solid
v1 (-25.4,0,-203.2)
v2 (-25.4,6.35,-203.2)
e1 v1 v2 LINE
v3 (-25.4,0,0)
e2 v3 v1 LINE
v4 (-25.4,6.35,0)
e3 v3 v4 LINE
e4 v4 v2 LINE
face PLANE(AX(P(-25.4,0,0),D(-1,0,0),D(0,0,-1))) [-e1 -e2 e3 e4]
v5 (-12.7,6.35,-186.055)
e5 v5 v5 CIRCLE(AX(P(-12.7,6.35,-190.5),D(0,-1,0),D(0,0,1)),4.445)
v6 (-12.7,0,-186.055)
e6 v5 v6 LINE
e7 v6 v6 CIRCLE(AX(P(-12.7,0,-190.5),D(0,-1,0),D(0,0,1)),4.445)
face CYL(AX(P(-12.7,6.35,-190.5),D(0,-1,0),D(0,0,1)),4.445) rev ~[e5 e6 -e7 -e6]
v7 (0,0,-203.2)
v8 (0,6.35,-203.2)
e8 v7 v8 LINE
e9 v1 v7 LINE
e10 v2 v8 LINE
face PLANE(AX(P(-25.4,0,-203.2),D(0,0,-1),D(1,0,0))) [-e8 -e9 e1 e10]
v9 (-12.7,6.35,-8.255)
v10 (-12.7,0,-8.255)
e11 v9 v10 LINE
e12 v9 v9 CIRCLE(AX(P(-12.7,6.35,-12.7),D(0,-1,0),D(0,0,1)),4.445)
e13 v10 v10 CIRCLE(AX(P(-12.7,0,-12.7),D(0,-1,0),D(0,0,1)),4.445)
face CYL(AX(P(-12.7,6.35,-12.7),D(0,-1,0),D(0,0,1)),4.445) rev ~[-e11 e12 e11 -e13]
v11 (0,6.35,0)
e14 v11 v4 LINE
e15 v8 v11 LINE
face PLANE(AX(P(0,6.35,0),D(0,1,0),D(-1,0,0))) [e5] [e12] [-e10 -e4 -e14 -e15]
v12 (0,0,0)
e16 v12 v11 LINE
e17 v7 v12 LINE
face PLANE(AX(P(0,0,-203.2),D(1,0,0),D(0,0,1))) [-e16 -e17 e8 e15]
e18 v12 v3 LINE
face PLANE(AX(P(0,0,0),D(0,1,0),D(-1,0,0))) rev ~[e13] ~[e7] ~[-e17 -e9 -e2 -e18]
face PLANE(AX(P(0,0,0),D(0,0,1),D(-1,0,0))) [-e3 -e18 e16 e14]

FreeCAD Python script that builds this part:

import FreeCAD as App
import Part
import Sketcher
from FreeCAD import Vector
Q = App.Units.Quantity


def add_polygon(sketch, points):
    """Adds a closed chain of lines whose ends are joined by coincident constraints."""
    first, n = sketch.GeometryCount, len(points)
    for a, b in zip(points, points[1:] + points[:1]):
        sketch.addGeometry(Part.LineSegment(App.Vector(*a, 0), App.Vector(*b, 0)), False)
    for i in range(n):
        sketch.addConstraint(Sketcher.Constraint("Coincident", first + i, 2, first + (i + 1) % n, 1))

doc = App.newDocument("Part")
body = doc.addObject("PartDesign::Body", "Body")

# Sketch on XZ plane
sketch1 = body.newObject("Sketcher::SketchObject", "Sketch")
sketch1.AttachmentSupport = (doc.getObject("XZ_Plane"), [""])
sketch1.MapMode = "FlatFace"
add_polygon(sketch1, [(-25, 0), (0, 0), (0, -203), (-25, -203)])  # lines 0-3
sketch1.addConstraint([
    Sketcher.Constraint("Horizontal", 0),
    Sketcher.Constraint("Vertical", 1),
    Sketcher.Constraint("Horizontal", 2),
    Sketcher.Constraint("Vertical", 3),
    Sketcher.Constraint("Coincident", 0, 2, -1, 1),
    Sketcher.Constraint("DistanceX", 0, 1, 0, 2, Q("1 in")),
    Sketcher.Constraint("DistanceY", 1, 2, 1, 1, Q("8 in")),
])
pad1 = body.newObject("PartDesign::Pad", "Pad")
pad1.Profile = sketch1
pad1.Length = Q("0.25 in")
pad1.Reversed = True

# Sketch on XZ plane
sketch2 = body.newObject("Sketcher::SketchObject", "Sketch001")
sketch2.AttachmentSupport = (doc.getObject("XZ_Plane"), [""])
sketch2.MapMode = "FlatFace"
sketch2.AttachmentOffset = App.Placement(Vector(0, 0, -0.25 * 25.4), App.Rotation())
sketch2.addGeometry([
    Part.Circle(Vector(-12.7, -190.5, 0), Vector(0, 0, 1), 4.4),
    Part.Circle(Vector(-12.7, -12.7, 0), Vector(0, 0, 1), 4.4),
], False)
sketch2.addConstraint([
    Sketcher.Constraint("Equal", 0, 1),
    Sketcher.Constraint("Vertical", 0, 3, 1, 3),
    Sketcher.Constraint("Diameter", 0, Q("0.35 in")),
    Sketcher.Constraint("DistanceY", 0, 3, 1, 3, Q("7 in")),
    Sketcher.Constraint("DistanceX", 0, 3, -1, 1, Q("0.5 in")),
    Sketcher.Constraint("DistanceY", 0, 3, -1, 1, Q("7.5 in")),
])
doc.recompute()
hole = body.newObject("PartDesign::Hole", "Hole")
hole.Profile = sketch2
hole.ThreadType = "None"
hole.Diameter = Q("0.35 in")
hole.DepthType = "ThroughAll"
hole.Reversed = True

doc.recompute()
